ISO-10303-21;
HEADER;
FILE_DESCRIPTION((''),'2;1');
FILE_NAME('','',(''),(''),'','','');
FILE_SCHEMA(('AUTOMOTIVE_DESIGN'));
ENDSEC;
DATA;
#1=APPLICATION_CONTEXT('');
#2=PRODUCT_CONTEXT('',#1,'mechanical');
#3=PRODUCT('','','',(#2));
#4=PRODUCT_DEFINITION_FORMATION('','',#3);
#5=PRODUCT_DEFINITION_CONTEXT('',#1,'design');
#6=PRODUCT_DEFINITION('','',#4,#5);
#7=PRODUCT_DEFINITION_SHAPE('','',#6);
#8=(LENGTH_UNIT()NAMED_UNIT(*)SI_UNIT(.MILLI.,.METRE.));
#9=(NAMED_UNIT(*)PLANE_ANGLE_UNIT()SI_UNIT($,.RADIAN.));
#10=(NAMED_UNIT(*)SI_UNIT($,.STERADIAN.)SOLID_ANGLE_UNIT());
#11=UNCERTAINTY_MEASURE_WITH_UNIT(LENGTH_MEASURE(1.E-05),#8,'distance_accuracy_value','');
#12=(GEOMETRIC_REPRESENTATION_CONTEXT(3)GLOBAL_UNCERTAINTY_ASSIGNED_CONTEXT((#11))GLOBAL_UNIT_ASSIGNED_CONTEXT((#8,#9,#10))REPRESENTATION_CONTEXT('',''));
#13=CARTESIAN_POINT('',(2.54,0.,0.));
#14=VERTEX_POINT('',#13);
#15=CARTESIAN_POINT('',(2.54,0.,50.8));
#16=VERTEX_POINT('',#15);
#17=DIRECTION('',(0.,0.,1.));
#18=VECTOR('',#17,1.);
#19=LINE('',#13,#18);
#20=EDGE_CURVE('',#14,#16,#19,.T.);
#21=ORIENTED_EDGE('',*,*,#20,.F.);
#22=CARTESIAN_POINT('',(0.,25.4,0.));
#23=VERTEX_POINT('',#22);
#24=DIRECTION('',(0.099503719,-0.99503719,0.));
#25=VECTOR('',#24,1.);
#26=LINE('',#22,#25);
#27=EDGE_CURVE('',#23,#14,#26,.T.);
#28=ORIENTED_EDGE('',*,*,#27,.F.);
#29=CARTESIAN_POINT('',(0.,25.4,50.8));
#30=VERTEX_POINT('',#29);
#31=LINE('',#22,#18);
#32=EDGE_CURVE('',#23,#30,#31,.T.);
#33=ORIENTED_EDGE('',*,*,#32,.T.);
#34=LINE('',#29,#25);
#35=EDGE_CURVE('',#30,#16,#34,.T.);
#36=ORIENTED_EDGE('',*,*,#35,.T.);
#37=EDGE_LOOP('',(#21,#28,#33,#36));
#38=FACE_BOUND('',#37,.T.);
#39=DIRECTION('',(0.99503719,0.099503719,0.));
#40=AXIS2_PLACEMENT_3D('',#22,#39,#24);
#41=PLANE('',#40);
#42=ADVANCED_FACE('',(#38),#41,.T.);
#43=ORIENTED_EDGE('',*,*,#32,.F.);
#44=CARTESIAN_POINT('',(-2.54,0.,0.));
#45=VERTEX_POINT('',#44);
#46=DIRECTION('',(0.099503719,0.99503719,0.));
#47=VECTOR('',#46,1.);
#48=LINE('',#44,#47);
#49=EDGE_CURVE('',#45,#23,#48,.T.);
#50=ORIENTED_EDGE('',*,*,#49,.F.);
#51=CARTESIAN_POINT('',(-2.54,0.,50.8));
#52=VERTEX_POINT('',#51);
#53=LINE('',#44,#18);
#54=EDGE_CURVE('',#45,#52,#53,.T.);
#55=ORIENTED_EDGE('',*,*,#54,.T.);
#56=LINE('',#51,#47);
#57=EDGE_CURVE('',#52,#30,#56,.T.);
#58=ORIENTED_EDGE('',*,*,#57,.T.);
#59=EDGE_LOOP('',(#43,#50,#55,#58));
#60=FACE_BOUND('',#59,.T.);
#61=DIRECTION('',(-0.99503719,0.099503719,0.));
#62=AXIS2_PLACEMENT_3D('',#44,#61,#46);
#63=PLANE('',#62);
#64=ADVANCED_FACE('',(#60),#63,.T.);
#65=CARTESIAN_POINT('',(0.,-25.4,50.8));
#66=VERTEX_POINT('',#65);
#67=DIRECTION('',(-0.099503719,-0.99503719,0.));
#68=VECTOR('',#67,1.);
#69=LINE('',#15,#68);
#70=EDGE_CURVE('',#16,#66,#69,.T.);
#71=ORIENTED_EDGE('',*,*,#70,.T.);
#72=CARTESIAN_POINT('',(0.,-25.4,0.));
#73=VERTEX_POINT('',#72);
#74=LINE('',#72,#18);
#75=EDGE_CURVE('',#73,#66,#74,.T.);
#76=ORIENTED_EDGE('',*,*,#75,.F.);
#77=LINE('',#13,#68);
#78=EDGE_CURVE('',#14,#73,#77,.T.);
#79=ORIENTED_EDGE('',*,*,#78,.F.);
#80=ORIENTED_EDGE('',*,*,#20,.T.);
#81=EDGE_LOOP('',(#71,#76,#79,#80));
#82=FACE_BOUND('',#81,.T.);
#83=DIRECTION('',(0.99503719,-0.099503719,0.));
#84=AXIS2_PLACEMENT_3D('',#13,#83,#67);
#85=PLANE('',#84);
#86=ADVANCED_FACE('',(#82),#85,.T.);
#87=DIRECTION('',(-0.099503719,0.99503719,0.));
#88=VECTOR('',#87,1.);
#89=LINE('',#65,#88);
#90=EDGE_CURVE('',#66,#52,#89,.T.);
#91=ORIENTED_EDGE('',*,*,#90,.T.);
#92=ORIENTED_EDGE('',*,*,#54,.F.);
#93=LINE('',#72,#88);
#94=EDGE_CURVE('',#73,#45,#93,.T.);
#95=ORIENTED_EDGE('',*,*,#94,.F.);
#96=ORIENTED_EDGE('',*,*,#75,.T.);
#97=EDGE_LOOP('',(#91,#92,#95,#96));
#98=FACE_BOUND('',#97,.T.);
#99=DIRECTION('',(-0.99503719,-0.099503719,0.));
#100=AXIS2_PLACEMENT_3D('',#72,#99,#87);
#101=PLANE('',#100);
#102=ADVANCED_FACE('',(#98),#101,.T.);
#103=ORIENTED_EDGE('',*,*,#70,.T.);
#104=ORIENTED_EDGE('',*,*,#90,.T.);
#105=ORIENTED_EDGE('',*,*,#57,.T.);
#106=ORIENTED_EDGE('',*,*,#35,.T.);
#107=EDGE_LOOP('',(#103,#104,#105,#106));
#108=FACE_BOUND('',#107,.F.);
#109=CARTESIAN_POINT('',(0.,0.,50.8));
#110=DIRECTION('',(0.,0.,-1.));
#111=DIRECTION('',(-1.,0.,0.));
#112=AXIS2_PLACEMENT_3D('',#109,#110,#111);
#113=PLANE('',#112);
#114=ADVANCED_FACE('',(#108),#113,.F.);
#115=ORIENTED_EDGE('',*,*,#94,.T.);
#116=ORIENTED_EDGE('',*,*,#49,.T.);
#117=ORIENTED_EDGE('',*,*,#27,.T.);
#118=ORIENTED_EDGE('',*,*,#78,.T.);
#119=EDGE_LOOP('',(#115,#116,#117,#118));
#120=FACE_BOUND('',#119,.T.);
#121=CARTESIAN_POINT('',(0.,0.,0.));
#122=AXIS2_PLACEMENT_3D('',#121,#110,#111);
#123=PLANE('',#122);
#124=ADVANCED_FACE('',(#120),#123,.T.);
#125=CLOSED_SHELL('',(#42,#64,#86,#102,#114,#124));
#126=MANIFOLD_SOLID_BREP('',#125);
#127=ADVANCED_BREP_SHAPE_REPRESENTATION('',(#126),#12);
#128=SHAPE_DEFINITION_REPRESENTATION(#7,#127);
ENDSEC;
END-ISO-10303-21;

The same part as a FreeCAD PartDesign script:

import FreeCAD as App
import Part
import Sketcher

V = App.Vector
Q = App.Units.Quantity

doc = App.newDocument("Part")
body = doc.addObject("PartDesign::Body", "Body")

sketch1 = body.newObject("Sketcher::SketchObject", "Sketch")
sketch1.AttachmentSupport = (doc.getObject("XY_Plane"), [""])
sketch1.MapMode = "FlatFace"
sketch1.addGeometry(Part.LineSegment(V(0, -25, 0), V(3, 0, 0)), False)
sketch1.addGeometry(Part.LineSegment(V(3, 0, 0), V(0, 25, 0)), False)
sketch1.addGeometry(Part.LineSegment(V(0, 25, 0), V(-3, 0, 0)), False)
sketch1.addGeometry(Part.LineSegment(V(-3, 0, 0), V(0, -25, 0)), False)
sketch1.addConstraint(Sketcher.Constraint("Coincident", 0, 2, 1, 1))
sketch1.addConstraint(Sketcher.Constraint("Coincident", 1, 2, 2, 1))
sketch1.addConstraint(Sketcher.Constraint("Coincident", 2, 2, 3, 1))
sketch1.addConstraint(Sketcher.Constraint("Coincident", 3, 2, 0, 1))
sketch1.addConstraint(Sketcher.Constraint("Symmetric", 0, 2, 2, 2, -1, 1))
sketch1.addConstraint(Sketcher.Constraint("Symmetric", 1, 2, 3, 2, -1, 1))
sketch1.addConstraint(Sketcher.Constraint("PointOnObject", 0, 2, -1))
sketch1.addConstraint(Sketcher.Constraint("PointOnObject", 1, 2, -2))
sketch1.addConstraint(Sketcher.Constraint("DistanceY", -1, 1, 1, 2, Q("1 in")))
sketch1.addConstraint(Sketcher.Constraint("DistanceX", -1, 1, 0, 2, Q("0.1 in")))
pad1 = body.newObject("PartDesign::Pad", "Pad")
pad1.Profile = sketch1
pad1.Length = Q("2 in")

doc.recompute()
